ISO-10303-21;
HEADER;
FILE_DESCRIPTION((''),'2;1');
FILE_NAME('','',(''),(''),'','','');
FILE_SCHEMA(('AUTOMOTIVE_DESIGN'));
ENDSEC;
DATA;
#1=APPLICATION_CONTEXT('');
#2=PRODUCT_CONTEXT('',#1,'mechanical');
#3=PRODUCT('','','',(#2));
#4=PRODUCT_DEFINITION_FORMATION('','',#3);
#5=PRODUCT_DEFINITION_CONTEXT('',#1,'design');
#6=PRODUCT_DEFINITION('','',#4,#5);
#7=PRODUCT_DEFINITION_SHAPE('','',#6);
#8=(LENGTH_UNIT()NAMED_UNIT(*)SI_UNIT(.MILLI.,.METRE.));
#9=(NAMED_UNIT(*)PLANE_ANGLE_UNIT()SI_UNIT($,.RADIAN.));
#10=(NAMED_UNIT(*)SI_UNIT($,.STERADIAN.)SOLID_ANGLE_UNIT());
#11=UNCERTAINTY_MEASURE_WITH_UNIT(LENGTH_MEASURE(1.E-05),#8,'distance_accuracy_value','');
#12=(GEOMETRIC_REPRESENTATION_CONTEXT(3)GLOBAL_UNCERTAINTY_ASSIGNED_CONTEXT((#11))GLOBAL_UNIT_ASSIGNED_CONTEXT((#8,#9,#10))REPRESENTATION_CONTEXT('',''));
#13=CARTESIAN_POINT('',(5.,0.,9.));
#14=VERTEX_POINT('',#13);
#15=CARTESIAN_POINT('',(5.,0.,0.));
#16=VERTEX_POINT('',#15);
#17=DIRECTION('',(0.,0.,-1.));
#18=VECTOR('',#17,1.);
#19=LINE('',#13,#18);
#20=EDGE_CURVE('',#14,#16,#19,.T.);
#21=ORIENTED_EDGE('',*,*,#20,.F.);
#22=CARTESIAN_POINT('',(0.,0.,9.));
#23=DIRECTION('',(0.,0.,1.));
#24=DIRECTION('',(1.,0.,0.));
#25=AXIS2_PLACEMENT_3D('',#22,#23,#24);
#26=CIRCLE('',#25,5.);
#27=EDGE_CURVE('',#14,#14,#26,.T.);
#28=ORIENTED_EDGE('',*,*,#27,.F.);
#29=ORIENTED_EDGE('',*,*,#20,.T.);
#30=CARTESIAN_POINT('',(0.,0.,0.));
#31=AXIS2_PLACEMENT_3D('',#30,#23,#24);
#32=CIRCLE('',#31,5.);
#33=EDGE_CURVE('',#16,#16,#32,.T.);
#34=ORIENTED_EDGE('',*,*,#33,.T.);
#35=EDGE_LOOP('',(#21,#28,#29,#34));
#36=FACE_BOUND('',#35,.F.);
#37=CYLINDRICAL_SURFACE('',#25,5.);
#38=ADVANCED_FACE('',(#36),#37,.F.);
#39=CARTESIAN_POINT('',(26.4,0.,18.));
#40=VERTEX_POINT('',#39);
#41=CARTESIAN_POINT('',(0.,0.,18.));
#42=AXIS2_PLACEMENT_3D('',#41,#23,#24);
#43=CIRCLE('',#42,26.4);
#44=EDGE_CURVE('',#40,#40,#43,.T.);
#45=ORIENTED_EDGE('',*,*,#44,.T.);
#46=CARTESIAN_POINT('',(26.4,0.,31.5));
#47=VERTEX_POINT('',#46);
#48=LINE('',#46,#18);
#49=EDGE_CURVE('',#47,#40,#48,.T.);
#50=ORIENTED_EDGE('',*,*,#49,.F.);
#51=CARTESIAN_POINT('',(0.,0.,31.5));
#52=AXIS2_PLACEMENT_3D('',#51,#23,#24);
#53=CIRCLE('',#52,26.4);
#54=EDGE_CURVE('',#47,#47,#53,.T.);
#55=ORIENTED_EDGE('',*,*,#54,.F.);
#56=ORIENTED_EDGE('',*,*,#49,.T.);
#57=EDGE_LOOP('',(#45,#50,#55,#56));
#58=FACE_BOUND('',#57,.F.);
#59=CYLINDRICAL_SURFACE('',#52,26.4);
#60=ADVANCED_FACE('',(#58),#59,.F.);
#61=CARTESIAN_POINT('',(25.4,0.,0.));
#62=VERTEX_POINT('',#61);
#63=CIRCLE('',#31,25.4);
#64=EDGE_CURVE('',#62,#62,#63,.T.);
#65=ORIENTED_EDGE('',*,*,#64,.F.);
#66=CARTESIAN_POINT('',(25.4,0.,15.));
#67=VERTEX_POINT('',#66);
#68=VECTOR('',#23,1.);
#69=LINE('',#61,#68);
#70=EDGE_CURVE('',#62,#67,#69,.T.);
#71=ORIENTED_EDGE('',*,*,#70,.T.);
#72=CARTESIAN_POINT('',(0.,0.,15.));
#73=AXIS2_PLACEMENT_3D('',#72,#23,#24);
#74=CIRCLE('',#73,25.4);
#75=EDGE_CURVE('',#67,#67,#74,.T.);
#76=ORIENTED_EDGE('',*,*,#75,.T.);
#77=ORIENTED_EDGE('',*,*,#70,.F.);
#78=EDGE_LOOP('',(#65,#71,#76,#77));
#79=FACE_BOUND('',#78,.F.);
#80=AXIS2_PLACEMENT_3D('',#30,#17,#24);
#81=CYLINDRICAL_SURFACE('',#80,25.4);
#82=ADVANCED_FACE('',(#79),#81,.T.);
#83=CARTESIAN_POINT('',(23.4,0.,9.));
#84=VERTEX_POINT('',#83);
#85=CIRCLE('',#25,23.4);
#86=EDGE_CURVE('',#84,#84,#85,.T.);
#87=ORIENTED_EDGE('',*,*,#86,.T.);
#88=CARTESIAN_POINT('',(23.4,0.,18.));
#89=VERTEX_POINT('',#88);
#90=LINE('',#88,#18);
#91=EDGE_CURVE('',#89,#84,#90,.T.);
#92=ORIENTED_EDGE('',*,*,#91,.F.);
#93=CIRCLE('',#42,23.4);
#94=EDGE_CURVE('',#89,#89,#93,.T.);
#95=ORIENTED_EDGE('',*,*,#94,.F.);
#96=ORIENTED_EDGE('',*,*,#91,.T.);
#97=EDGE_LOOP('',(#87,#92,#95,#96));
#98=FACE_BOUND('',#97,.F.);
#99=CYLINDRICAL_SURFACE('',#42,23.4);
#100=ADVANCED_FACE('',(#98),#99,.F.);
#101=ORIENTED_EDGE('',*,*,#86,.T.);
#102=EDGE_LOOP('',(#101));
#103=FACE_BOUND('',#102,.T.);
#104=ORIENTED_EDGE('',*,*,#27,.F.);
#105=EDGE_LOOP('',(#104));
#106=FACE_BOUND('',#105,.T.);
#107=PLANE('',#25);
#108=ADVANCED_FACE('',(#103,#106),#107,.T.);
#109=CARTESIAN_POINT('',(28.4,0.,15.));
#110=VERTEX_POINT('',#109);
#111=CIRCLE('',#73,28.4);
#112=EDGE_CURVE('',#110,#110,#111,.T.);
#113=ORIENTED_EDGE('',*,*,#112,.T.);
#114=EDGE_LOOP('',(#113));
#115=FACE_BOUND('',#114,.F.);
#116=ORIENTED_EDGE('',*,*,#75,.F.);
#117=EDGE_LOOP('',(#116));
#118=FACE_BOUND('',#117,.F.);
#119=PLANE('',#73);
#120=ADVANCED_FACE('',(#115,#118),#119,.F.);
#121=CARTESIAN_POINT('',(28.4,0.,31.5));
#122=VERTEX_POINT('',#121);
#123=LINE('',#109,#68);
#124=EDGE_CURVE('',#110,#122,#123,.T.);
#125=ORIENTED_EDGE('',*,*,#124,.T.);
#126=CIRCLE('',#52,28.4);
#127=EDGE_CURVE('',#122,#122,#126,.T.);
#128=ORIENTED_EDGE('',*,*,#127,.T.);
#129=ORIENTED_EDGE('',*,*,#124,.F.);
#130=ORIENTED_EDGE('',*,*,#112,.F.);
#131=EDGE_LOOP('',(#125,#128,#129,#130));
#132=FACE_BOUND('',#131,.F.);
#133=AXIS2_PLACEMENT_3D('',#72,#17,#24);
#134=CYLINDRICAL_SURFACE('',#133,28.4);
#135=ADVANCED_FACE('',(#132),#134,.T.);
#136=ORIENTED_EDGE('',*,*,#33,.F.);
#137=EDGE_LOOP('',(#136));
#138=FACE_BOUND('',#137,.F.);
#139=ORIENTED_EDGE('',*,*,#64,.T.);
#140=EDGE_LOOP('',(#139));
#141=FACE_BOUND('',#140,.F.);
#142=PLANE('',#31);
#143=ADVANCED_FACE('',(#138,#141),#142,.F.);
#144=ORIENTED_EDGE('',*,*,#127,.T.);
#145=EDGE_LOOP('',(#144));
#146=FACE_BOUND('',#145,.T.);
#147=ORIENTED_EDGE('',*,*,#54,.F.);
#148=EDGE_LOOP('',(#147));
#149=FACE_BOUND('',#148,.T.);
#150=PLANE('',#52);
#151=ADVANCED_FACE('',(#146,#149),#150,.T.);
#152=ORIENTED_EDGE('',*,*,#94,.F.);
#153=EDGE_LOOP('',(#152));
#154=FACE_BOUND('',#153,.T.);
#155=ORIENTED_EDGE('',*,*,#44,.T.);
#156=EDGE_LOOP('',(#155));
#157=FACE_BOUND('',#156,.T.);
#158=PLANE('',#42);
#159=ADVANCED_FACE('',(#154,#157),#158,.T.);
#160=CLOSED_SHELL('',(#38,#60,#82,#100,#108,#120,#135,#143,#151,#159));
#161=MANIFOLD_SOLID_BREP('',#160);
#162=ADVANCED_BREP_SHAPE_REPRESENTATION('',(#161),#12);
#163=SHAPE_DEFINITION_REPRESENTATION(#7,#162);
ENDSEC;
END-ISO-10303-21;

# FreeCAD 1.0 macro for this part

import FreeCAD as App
import Part
import Sketcher
from FreeCAD import Vector
Q = App.Units.Quantity

doc = App.newDocument("Part")
body = doc.addObject("PartDesign::Body", "Body")

# Sketch on XY plane
sketch1 = body.newObject("Sketcher::SketchObject", "Sketch")
sketch1.AttachmentSupport = (doc.getObject("XY_Plane"), [""])
sketch1.MapMode = "FlatFace"
sketch1.addGeometry(Part.Circle(Vector(0, 0, 0), Vector(0, 0, 1), 25.4), False)
sketch1.addConstraint([
    Sketcher.Constraint("Coincident", 0, 3, -1, 1),
    Sketcher.Constraint("Diameter", 0, Q("50.8 mm")),
])
pad1 = body.newObject("PartDesign::Pad", "Pad")
pad1.Profile = sketch1
pad1.Length = 15

# Sketch on XY plane
sketch2 = body.newObject("Sketcher::SketchObject", "Sketch001")
sketch2.AttachmentSupport = (doc.getObject("XY_Plane"), [""])
sketch2.MapMode = "FlatFace"
sketch2.AttachmentOffset = App.Placement(Vector(0, 0, 15), App.Rotation())
sketch2.addGeometry(Part.Circle(Vector(0, 0, 0), Vector(0, 0, 1), 28.4), False)
sketch2.addConstraint([
    Sketcher.Constraint("Coincident", 0, 3, -1, 1),
    Sketcher.Constraint("Diameter", 0, Q("56.8 mm")),
])
pad2 = body.newObject("PartDesign::Pad", "Pad001")
pad2.Profile = sketch2
pad2.Length = 16.5

# Sketch on XY plane
sketch3 = body.newObject("Sketcher::SketchObject", "Sketch002")
sketch3.AttachmentSupport = (doc.getObject("XY_Plane"), [""])
sketch3.MapMode = "FlatFace"
sketch3.AttachmentOffset = App.Placement(Vector(0, 0, 31.5), App.Rotation())
sketch3.addGeometry(Part.Circle(Vector(0, 0, 0), Vector(0, 0, 1), 26.4), False)
sketch3.addConstraint([
    Sketcher.Constraint("Coincident", 0, 3, -1, 1),
    Sketcher.Constraint("Diameter", 0, Q("52.8 mm")),
])
pocket1 = body.newObject("PartDesign::Pocket", "Pocket")
pocket1.Profile = sketch3
pocket1.Length = 13.5

# Sketch on XY plane
sketch4 = body.newObject("Sketcher::SketchObject", "Sketch003")
sketch4.AttachmentSupport = (doc.getObject("XY_Plane"), [""])
sketch4.MapMode = "FlatFace"
sketch4.AttachmentOffset = App.Placement(Vector(0, 0, 18), App.Rotation())
sketch4.addGeometry(Part.Circle(Vector(0, 0, 0), Vector(0, 0, 1), 23.4), False)
sketch4.addConstraint([
    Sketcher.Constraint("Coincident", 0, 3, -1, 1),
    Sketcher.Constraint("Diameter", 0, Q("46.8 mm")),
])
pocket2 = body.newObject("PartDesign::Pocket", "Pocket001")
pocket2.Profile = sketch4
pocket2.Length = 9

# Sketch on XY plane
sketch5 = body.newObject("Sketcher::SketchObject", "Sketch004")
sketch5.AttachmentSupport = (doc.getObject("XY_Plane"), [""])
sketch5.MapMode = "FlatFace"
sketch5.AttachmentOffset = App.Placement(Vector(0, 0, 9), App.Rotation())
sketch5.addGeometry(Part.Circle(Vector(0, 0, 0), Vector(0, 0, 1), 5), False)
sketch5.addConstraint([
    Sketcher.Constraint("Coincident", 0, 3, -1, 1),
    Sketcher.Constraint("Diameter", 0, Q("10 mm")),
])
pocket3 = body.newObject("PartDesign::Pocket", "Pocket002")
pocket3.Profile = sketch5
pocket3.Type = "ThroughAll"

doc.recompute()
